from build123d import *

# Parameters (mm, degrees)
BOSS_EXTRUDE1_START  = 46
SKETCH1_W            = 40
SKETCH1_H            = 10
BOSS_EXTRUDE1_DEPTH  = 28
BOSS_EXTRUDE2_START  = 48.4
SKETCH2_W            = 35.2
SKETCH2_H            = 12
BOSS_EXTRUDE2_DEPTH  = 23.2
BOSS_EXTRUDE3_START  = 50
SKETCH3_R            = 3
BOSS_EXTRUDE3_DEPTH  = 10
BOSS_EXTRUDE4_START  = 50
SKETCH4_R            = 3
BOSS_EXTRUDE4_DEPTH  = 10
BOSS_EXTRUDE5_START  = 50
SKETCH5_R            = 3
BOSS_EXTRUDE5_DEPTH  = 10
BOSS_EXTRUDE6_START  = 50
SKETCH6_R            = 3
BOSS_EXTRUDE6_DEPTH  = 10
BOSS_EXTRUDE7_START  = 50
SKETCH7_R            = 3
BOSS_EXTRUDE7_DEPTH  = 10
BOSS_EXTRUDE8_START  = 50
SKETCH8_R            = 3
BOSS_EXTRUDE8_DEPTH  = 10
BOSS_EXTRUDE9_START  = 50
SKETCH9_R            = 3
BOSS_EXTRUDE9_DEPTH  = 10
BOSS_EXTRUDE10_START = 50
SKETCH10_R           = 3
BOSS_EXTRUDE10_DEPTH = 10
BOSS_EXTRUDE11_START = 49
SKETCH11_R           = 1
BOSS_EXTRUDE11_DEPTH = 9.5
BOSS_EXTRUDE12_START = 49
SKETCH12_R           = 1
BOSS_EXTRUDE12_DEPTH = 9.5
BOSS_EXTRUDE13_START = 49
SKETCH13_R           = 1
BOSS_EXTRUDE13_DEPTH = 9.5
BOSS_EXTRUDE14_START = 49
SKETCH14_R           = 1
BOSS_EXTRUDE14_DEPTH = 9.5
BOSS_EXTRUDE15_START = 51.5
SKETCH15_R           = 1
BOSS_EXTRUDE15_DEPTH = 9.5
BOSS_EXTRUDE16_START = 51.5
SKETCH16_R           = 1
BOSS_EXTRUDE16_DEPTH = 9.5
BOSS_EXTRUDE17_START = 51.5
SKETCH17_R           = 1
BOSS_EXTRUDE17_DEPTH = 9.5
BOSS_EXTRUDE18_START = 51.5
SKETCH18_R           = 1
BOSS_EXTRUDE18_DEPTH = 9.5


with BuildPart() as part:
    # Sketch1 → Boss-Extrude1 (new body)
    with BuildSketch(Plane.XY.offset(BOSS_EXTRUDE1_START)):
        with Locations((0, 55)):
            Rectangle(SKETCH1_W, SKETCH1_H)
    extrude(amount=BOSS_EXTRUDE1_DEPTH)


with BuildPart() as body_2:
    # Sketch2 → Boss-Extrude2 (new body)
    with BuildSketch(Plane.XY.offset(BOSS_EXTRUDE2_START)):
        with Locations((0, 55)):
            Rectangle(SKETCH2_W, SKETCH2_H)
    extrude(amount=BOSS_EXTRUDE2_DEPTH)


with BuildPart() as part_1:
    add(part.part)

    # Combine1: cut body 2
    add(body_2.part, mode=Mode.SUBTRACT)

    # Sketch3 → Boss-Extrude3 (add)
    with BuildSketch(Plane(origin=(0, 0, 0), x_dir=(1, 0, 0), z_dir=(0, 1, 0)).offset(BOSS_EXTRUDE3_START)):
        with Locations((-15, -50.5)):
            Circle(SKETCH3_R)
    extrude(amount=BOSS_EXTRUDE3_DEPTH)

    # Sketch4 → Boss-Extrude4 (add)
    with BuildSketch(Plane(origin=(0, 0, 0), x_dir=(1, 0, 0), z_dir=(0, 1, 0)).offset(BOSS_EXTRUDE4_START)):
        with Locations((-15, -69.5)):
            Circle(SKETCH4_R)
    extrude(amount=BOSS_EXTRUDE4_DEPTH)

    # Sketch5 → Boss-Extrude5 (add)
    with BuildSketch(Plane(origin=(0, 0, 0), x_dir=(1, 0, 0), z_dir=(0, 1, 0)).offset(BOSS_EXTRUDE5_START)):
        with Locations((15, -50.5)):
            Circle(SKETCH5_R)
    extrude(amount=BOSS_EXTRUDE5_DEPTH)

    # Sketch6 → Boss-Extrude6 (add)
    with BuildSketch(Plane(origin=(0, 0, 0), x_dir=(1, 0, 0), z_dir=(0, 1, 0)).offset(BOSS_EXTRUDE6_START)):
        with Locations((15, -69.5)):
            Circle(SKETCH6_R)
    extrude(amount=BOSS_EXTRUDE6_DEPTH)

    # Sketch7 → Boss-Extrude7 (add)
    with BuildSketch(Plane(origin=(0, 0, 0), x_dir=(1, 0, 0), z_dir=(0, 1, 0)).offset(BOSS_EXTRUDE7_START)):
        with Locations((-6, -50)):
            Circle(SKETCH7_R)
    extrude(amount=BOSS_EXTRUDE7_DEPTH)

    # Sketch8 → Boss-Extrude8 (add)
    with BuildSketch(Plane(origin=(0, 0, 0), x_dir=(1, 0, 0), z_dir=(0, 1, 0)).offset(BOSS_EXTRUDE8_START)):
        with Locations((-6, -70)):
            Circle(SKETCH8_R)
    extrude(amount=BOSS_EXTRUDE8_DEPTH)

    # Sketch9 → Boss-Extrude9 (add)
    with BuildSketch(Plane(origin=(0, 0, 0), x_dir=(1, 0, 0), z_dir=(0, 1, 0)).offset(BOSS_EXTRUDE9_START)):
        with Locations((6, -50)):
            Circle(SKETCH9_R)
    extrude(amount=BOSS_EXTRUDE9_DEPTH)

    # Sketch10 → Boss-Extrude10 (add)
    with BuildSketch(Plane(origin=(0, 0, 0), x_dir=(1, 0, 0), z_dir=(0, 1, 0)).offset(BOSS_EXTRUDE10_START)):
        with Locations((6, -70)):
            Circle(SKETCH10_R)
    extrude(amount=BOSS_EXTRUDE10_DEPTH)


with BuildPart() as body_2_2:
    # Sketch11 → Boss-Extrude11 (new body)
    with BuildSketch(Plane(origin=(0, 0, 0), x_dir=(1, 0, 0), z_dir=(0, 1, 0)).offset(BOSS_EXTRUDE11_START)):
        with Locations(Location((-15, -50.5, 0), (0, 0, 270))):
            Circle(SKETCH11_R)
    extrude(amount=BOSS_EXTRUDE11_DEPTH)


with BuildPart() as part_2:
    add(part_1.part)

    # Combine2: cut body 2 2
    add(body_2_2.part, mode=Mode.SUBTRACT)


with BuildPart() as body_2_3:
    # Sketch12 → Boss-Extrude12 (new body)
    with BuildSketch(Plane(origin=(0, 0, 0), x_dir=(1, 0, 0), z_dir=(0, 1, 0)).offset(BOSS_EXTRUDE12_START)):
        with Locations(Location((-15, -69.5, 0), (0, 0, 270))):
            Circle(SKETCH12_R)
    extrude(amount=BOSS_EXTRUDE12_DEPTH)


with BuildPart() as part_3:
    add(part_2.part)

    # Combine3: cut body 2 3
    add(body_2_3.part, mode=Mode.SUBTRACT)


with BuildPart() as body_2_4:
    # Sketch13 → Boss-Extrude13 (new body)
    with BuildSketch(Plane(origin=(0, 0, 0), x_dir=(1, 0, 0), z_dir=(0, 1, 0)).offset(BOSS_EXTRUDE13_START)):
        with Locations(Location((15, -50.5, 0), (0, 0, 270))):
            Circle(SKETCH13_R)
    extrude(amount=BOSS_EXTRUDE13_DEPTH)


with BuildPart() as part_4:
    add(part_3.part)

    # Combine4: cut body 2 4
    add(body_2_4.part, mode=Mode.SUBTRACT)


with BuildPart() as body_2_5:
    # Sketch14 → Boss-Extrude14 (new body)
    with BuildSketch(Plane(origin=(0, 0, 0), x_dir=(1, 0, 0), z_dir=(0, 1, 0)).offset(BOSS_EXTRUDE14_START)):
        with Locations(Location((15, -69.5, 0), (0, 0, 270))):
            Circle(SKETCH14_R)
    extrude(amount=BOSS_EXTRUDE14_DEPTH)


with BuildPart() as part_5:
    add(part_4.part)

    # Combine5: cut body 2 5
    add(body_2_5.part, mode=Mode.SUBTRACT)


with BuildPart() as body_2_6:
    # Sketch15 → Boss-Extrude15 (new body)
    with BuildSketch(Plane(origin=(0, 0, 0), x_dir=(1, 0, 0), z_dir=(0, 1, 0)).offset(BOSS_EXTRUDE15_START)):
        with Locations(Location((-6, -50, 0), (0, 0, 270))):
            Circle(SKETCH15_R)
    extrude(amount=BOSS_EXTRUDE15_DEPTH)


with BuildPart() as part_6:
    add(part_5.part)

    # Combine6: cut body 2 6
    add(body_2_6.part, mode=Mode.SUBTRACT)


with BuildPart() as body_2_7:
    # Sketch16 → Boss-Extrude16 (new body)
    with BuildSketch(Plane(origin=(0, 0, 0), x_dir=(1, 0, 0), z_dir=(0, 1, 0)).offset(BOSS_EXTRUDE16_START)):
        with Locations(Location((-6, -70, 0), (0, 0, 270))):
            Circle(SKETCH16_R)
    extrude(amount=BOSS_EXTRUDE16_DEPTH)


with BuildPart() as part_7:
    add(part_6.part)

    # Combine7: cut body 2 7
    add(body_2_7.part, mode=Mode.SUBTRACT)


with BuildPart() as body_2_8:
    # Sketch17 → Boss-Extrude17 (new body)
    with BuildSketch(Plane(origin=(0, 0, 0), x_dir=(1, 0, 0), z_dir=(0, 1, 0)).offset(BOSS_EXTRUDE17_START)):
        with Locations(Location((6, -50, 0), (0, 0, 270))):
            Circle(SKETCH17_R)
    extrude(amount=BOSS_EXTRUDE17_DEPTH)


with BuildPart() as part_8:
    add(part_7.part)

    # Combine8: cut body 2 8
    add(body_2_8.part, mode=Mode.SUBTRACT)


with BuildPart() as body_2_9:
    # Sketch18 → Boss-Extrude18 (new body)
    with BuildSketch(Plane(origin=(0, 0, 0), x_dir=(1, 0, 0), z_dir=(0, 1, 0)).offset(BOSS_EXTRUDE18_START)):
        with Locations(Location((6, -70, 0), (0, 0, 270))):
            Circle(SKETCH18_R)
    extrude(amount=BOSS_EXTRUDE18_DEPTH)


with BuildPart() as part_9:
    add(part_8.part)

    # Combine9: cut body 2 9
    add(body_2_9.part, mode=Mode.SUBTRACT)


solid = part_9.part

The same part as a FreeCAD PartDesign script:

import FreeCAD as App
import Part
import Sketcher
from FreeCAD import Vector

doc = App.newDocument("Part")
body = doc.addObject("PartDesign::Body", "Body")

sketch1 = body.newObject("Sketcher::SketchObject", "Sketch")
sketch1.AttachmentSupport = (doc.getObject("XY_Plane"), [""])
sketch1.MapMode = "FlatFace"
sketch1.AttachmentOffset = App.Placement(Vector(0, 0, 46), App.Rotation())
sketch1.addGeometry(Part.LineSegment(Vector(-20, 60, 0), Vector(-20, 50, 0)), False)
sketch1.addGeometry(Part.LineSegment(Vector(-20, 50, 0), Vector(20, 50, 0)), False)
sketch1.addGeometry(Part.LineSegment(Vector(20, 50, 0), Vector(20, 60, 0)), False)
sketch1.addGeometry(Part.LineSegment(Vector(20, 60, 0), Vector(-20, 60, 0)), False)
sketch1.addConstraint(Sketcher.Constraint("Coincident", 0, 2, 1, 1))
sketch1.addConstraint(Sketcher.Constraint("Coincident", 1, 2, 2, 1))
sketch1.addConstraint(Sketcher.Constraint("Coincident", 2, 2, 3, 1))
sketch1.addConstraint(Sketcher.Constraint("Coincident", 3, 2, 0, 1))
sketch1.addConstraint(Sketcher.Constraint("Vertical", 0))
sketch1.addConstraint(Sketcher.Constraint("Horizontal", 1))
sketch1.addConstraint(Sketcher.Constraint("Vertical", 2))
sketch1.addConstraint(Sketcher.Constraint("Horizontal", 3))
sketch1.addConstraint(Sketcher.Constraint("DistanceX", 1, 1, 1, 2, 40.0))
sketch1.addConstraint(Sketcher.Constraint("DistanceY", 0, 2, 0, 1, 10.0))
sketch1.addConstraint(Sketcher.Constraint("DistanceX", 0, 2, -1, 1, 20.0))
sketch1.addConstraint(Sketcher.Constraint("DistanceY", -1, 1, 0, 2, 50.0))
pad1 = body.newObject("PartDesign::Pad", "Pad")
pad1.Profile = sketch1
pad1.Length = 28
body2 = doc.addObject("PartDesign::Body", "Body001")

sketch2 = body2.newObject("Sketcher::SketchObject", "Sketch001")
sketch2.AttachmentSupport = (doc.getObject("XY_Plane001"), [""])
sketch2.MapMode = "FlatFace"
sketch2.AttachmentOffset = App.Placement(Vector(0, 0, 48.4), App.Rotation())
sketch2.addGeometry(Part.LineSegment(Vector(-17.6, 61, 0), Vector(-17.6, 49, 0)), False)
sketch2.addGeometry(Part.LineSegment(Vector(-17.6, 49, 0), Vector(17.6, 49, 0)), False)
sketch2.addGeometry(Part.LineSegment(Vector(17.6, 49, 0), Vector(17.6, 61, 0)), False)
sketch2.addGeometry(Part.LineSegment(Vector(17.6, 61, 0), Vector(-17.6, 61, 0)), False)
sketch2.addConstraint(Sketcher.Constraint("Coincident", 0, 2, 1, 1))
sketch2.addConstraint(Sketcher.Constraint("Coincident", 1, 2, 2, 1))
sketch2.addConstraint(Sketcher.Constraint("Coincident", 2, 2, 3, 1))
sketch2.addConstraint(Sketcher.Constraint("Coincident", 3, 2, 0, 1))
sketch2.addConstraint(Sketcher.Constraint("Vertical", 0))
sketch2.addConstraint(Sketcher.Constraint("Horizontal", 1))
sketch2.addConstraint(Sketcher.Constraint("Vertical", 2))
sketch2.addConstraint(Sketcher.Constraint("Horizontal", 3))
sketch2.addConstraint(Sketcher.Constraint("DistanceY", 0, 2, 0, 1, 12.0))
sketch2.addConstraint(Sketcher.Constraint("DistanceX", 1, 1, 1, 2, 35.2))
sketch2.addConstraint(Sketcher.Constraint("DistanceY", -1, 1, 0, 2, 49.0))
sketch2.addConstraint(Sketcher.Constraint("DistanceX", 0, 2, -1, 1, 17.6))
pad2 = body2.newObject("PartDesign::Pad", "Pad001")
pad2.Profile = sketch2
pad2.Length = 23.2
doc.recompute()

boolean = body.newObject("PartDesign::Boolean", "Boolean")
boolean.Type = "Cut"
boolean.addObjects([body2])

sketch3 = body.newObject("Sketcher::SketchObject", "Sketch002")
sketch3.AttachmentSupport = (doc.getObject("XZ_Plane"), [""])
sketch3.MapMode = "FlatFace"
sketch3.AttachmentOffset = App.Placement(Vector(0, 0, -50), App.Rotation())
sketch3.addGeometry(Part.Circle(Vector(-15, 50.5, 0), Vector(0, 0, 1), 3), False)
sketch3.addConstraint(Sketcher.Constraint("Diameter", 0, 6.0))
sketch3.addConstraint(Sketcher.Constraint("DistanceX", 0, 3, -1, 1, 15.0))
sketch3.addConstraint(Sketcher.Constraint("DistanceY", -1, 1, 0, 3, 50.5))
pad3 = body.newObject("PartDesign::Pad", "Pad002")
pad3.Profile = sketch3
pad3.Length = 10
pad3.Reversed = True

sketch4 = body.newObject("Sketcher::SketchObject", "Sketch003")
sketch4.AttachmentSupport = (doc.getObject("XZ_Plane"), [""])
sketch4.MapMode = "FlatFace"
sketch4.AttachmentOffset = App.Placement(Vector(0, 0, -50), App.Rotation())
sketch4.addGeometry(Part.Circle(Vector(-15, 69.5, 0), Vector(0, 0, 1), 3), False)
sketch4.addConstraint(Sketcher.Constraint("Diameter", 0, 6.0))
sketch4.addConstraint(Sketcher.Constraint("DistanceX", 0, 3, -1, 1, 15.0))
sketch4.addConstraint(Sketcher.Constraint("DistanceY", -1, 1, 0, 3, 69.5))
pad4 = body.newObject("PartDesign::Pad", "Pad003")
pad4.Profile = sketch4
pad4.Length = 10
pad4.Reversed = True

sketch5 = body.newObject("Sketcher::SketchObject", "Sketch004")
sketch5.AttachmentSupport = (doc.getObject("XZ_Plane"), [""])
sketch5.MapMode = "FlatFace"
sketch5.AttachmentOffset = App.Placement(Vector(0, 0, -50), App.Rotation())
sketch5.addGeometry(Part.Circle(Vector(15, 50.5, 0), Vector(0, 0, 1), 3), False)
sketch5.addConstraint(Sketcher.Constraint("Diameter", 0, 6.0))
sketch5.addConstraint(Sketcher.Constraint("DistanceX", -1, 1, 0, 3, 15.0))
sketch5.addConstraint(Sketcher.Constraint("DistanceY", -1, 1, 0, 3, 50.5))
pad5 = body.newObject("PartDesign::Pad", "Pad004")
pad5.Profile = sketch5
pad5.Length = 10
pad5.Reversed = True

sketch6 = body.newObject("Sketcher::SketchObject", "Sketch005")
sketch6.AttachmentSupport = (doc.getObject("XZ_Plane"), [""])
sketch6.MapMode = "FlatFace"
sketch6.AttachmentOffset = App.Placement(Vector(0, 0, -50), App.Rotation())
sketch6.addGeometry(Part.Circle(Vector(15, 69.5, 0), Vector(0, 0, 1), 3), False)
sketch6.addConstraint(Sketcher.Constraint("Diameter", 0, 6.0))
sketch6.addConstraint(Sketcher.Constraint("DistanceX", -1, 1, 0, 3, 15.0))
sketch6.addConstraint(Sketcher.Constraint("DistanceY", -1, 1, 0, 3, 69.5))
pad6 = body.newObject("PartDesign::Pad", "Pad005")
pad6.Profile = sketch6
pad6.Length = 10
pad6.Reversed = True

sketch7 = body.newObject("Sketcher::SketchObject", "Sketch006")
sketch7.AttachmentSupport = (doc.getObject("XZ_Plane"), [""])
sketch7.MapMode = "FlatFace"
sketch7.AttachmentOffset = App.Placement(Vector(0, 0, -50), App.Rotation())
sketch7.addGeometry(Part.Circle(Vector(-6, 50, 0), Vector(0, 0, 1), 3), False)
sketch7.addConstraint(Sketcher.Constraint("Diameter", 0, 6.0))
sketch7.addConstraint(Sketcher.Constraint("DistanceX", 0, 3, -1, 1, 6.0))
sketch7.addConstraint(Sketcher.Constraint("DistanceY", -1, 1, 0, 3, 50.0))
pad7 = body.newObject("PartDesign::Pad", "Pad006")
pad7.Profile = sketch7
pad7.Length = 10
pad7.Reversed = True

sketch8 = body.newObject("Sketcher::SketchObject", "Sketch007")
sketch8.AttachmentSupport = (doc.getObject("XZ_Plane"), [""])
sketch8.MapMode = "FlatFace"
sketch8.AttachmentOffset = App.Placement(Vector(0, 0, -50), App.Rotation())
sketch8.addGeometry(Part.Circle(Vector(-6, 70, 0), Vector(0, 0, 1), 3), False)
sketch8.addConstraint(Sketcher.Constraint("Diameter", 0, 6.0))
sketch8.addConstraint(Sketcher.Constraint("DistanceX", 0, 3, -1, 1, 6.0))
sketch8.addConstraint(Sketcher.Constraint("DistanceY", -1, 1, 0, 3, 70.0))
pad8 = body.newObject("PartDesign::Pad", "Pad007")
pad8.Profile = sketch8
pad8.Length = 10
pad8.Reversed = True

sketch9 = body.newObject("Sketcher::SketchObject", "Sketch008")
sketch9.AttachmentSupport = (doc.getObject("XZ_Plane"), [""])
sketch9.MapMode = "FlatFace"
sketch9.AttachmentOffset = App.Placement(Vector(0, 0, -50), App.Rotation())
sketch9.addGeometry(Part.Circle(Vector(6, 50, 0), Vector(0, 0, 1), 3), False)
sketch9.addConstraint(Sketcher.Constraint("Diameter", 0, 6.0))
sketch9.addConstraint(Sketcher.Constraint("DistanceX", -1, 1, 0, 3, 6.0))
sketch9.addConstraint(Sketcher.Constraint("DistanceY", -1, 1, 0, 3, 50.0))
pad9 = body.newObject("PartDesign::Pad", "Pad008")
pad9.Profile = sketch9
pad9.Length = 10
pad9.Reversed = True

sketch10 = body.newObject("Sketcher::SketchObject", "Sketch009")
sketch10.AttachmentSupport = (doc.getObject("XZ_Plane"), [""])
sketch10.MapMode = "FlatFace"
sketch10.AttachmentOffset = App.Placement(Vector(0, 0, -50), App.Rotation())
sketch10.addGeometry(Part.Circle(Vector(6, 70, 0), Vector(0, 0, 1), 3), False)
sketch10.addConstraint(Sketcher.Constraint("Diameter", 0, 6.0))
sketch10.addConstraint(Sketcher.Constraint("DistanceX", -1, 1, 0, 3, 6.0))
sketch10.addConstraint(Sketcher.Constraint("DistanceY", -1, 1, 0, 3, 70.0))
pad10 = body.newObject("PartDesign::Pad", "Pad009")
pad10.Profile = sketch10
pad10.Length = 10
pad10.Reversed = True
body3 = doc.addObject("PartDesign::Body", "Body002")

sketch11 = body3.newObject("Sketcher::SketchObject", "Sketch010")
sketch11.AttachmentSupport = (doc.getObject("XZ_Plane002"), [""])
sketch11.MapMode = "FlatFace"
sketch11.AttachmentOffset = App.Placement(Vector(0, 0, -49), App.Rotation())
sketch11.addGeometry(Part.Circle(Vector(-15, 50.5, 0), Vector(0, 0, 1), 1), False)
sketch11.addConstraint(Sketcher.Constraint("Diameter", 0, 2.0))
sketch11.addConstraint(Sketcher.Constraint("DistanceX", 0, 3, -1, 1, 15.0))
sketch11.addConstraint(Sketcher.Constraint("DistanceY", -1, 1, 0, 3, 50.5))
pad11 = body3.newObject("PartDesign::Pad", "Pad010")
pad11.Profile = sketch11
pad11.Length = 9.5
pad11.Reversed = True
doc.recompute()

boolean2 = body.newObject("PartDesign::Boolean", "Boolean001")
boolean2.Type = "Cut"
boolean2.addObjects([body3])
body4 = doc.addObject("PartDesign::Body", "Body003")

sketch12 = body4.newObject("Sketcher::SketchObject", "Sketch011")
sketch12.AttachmentSupport = (doc.getObject("XZ_Plane003"), [""])
sketch12.MapMode = "FlatFace"
sketch12.AttachmentOffset = App.Placement(Vector(0, 0, -49), App.Rotation())
sketch12.addGeometry(Part.Circle(Vector(-15, 69.5, 0), Vector(0, 0, 1), 1), False)
sketch12.addConstraint(Sketcher.Constraint("Diameter", 0, 2.0))
sketch12.addConstraint(Sketcher.Constraint("DistanceX", 0, 3, -1, 1, 15.0))
sketch12.addConstraint(Sketcher.Constraint("DistanceY", -1, 1, 0, 3, 69.5))
pad12 = body4.newObject("PartDesign::Pad", "Pad011")
pad12.Profile = sketch12
pad12.Length = 9.5
pad12.Reversed = True
doc.recompute()

boolean3 = body.newObject("PartDesign::Boolean", "Boolean002")
boolean3.Type = "Cut"
boolean3.addObjects([body4])
body5 = doc.addObject("PartDesign::Body", "Body004")

sketch13 = body5.newObject("Sketcher::SketchObject", "Sketch012")
sketch13.AttachmentSupport = (doc.getObject("XZ_Plane004"), [""])
sketch13.MapMode = "FlatFace"
sketch13.AttachmentOffset = App.Placement(Vector(0, 0, -49), App.Rotation())
sketch13.addGeometry(Part.Circle(Vector(15, 50.5, 0), Vector(0, 0, 1), 1), False)
sketch13.addConstraint(Sketcher.Constraint("Diameter", 0, 2.0))
sketch13.addConstraint(Sketcher.Constraint("DistanceX", -1, 1, 0, 3, 15.0))
sketch13.addConstraint(Sketcher.Constraint("DistanceY", -1, 1, 0, 3, 50.5))
pad13 = body5.newObject("PartDesign::Pad", "Pad012")
pad13.Profile = sketch13
pad13.Length = 9.5
pad13.Reversed = True
doc.recompute()

boolean4 = body.newObject("PartDesign::Boolean", "Boolean003")
boolean4.Type = "Cut"
boolean4.addObjects([body5])
body6 = doc.addObject("PartDesign::Body", "Body005")

sketch14 = body6.newObject("Sketcher::SketchObject", "Sketch013")
sketch14.AttachmentSupport = (doc.getObject("XZ_Plane005"), [""])
sketch14.MapMode = "FlatFace"
sketch14.AttachmentOffset = App.Placement(Vector(0, 0, -49), App.Rotation())
sketch14.addGeometry(Part.Circle(Vector(15, 69.5, 0), Vector(0, 0, 1), 1), False)
sketch14.addConstraint(Sketcher.Constraint("Diameter", 0, 2.0))
sketch14.addConstraint(Sketcher.Constraint("DistanceX", -1, 1, 0, 3, 15.0))
sketch14.addConstraint(Sketcher.Constraint("DistanceY", -1, 1, 0, 3, 69.5))
pad14 = body6.newObject("PartDesign::Pad", "Pad013")
pad14.Profile = sketch14
pad14.Length = 9.5
pad14.Reversed = True
doc.recompute()

boolean5 = body.newObject("PartDesign::Boolean", "Boolean004")
boolean5.Type = "Cut"
boolean5.addObjects([body6])
body7 = doc.addObject("PartDesign::Body", "Body006")

sketch15 = body7.newObject("Sketcher::SketchObject", "Sketch014")
sketch15.AttachmentSupport = (doc.getObject("XZ_Plane006"), [""])
sketch15.MapMode = "FlatFace"
sketch15.AttachmentOffset = App.Placement(Vector(0, 0, -51.5), App.Rotation())
sketch15.addGeometry(Part.Circle(Vector(-6, 50, 0), Vector(0, 0, 1), 1), False)
sketch15.addConstraint(Sketcher.Constraint("Diameter", 0, 2.0))
sketch15.addConstraint(Sketcher.Constraint("DistanceX", 0, 3, -1, 1, 6.0))
sketch15.addConstraint(Sketcher.Constraint("DistanceY", -1, 1, 0, 3, 50.0))
pad15 = body7.newObject("PartDesign::Pad", "Pad014")
pad15.Profile = sketch15
pad15.Length = 9.5
pad15.Reversed = True
doc.recompute()

boolean6 = body.newObject("PartDesign::Boolean", "Boolean005")
boolean6.Type = "Cut"
boolean6.addObjects([body7])
body8 = doc.addObject("PartDesign::Body", "Body007")

sketch16 = body8.newObject("Sketcher::SketchObject", "Sketch015")
sketch16.AttachmentSupport = (doc.getObject("XZ_Plane007"), [""])
sketch16.MapMode = "FlatFace"
sketch16.AttachmentOffset = App.Placement(Vector(0, 0, -51.5), App.Rotation())
sketch16.addGeometry(Part.Circle(Vector(-6, 70, 0), Vector(0, 0, 1), 1), False)
sketch16.addConstraint(Sketcher.Constraint("Diameter", 0, 2.0))
sketch16.addConstraint(Sketcher.Constraint("DistanceX", 0, 3, -1, 1, 6.0))
sketch16.addConstraint(Sketcher.Constraint("DistanceY", -1, 1, 0, 3, 70.0))
pad16 = body8.newObject("PartDesign::Pad", "Pad015")
pad16.Profile = sketch16
pad16.Length = 9.5
pad16.Reversed = True
doc.recompute()

boolean7 = body.newObject("PartDesign::Boolean", "Boolean006")
boolean7.Type = "Cut"
boolean7.addObjects([body8])
body9 = doc.addObject("PartDesign::Body", "Body008")

sketch17 = body9.newObject("Sketcher::SketchObject", "Sketch016")
sketch17.AttachmentSupport = (doc.getObject("XZ_Plane008"), [""])
sketch17.MapMode = "FlatFace"
sketch17.AttachmentOffset = App.Placement(Vector(0, 0, -51.5), App.Rotation())
sketch17.addGeometry(Part.Circle(Vector(6, 50, 0), Vector(0, 0, 1), 1), False)
sketch17.addConstraint(Sketcher.Constraint("Diameter", 0, 2.0))
sketch17.addConstraint(Sketcher.Constraint("DistanceX", -1, 1, 0, 3, 6.0))
sketch17.addConstraint(Sketcher.Constraint("DistanceY", -1, 1, 0, 3, 50.0))
pad17 = body9.newObject("PartDesign::Pad", "Pad016")
pad17.Profile = sketch17
pad17.Length = 9.5
pad17.Reversed = True
doc.recompute()

boolean8 = body.newObject("PartDesign::Boolean", "Boolean007")
boolean8.Type = "Cut"
boolean8.addObjects([body9])
body10 = doc.addObject("PartDesign::Body", "Body009")

sketch18 = body10.newObject("Sketcher::SketchObject", "Sketch017")
sketch18.AttachmentSupport = (doc.getObject("XZ_Plane009"), [""])
sketch18.MapMode = "FlatFace"
sketch18.AttachmentOffset = App.Placement(Vector(0, 0, -51.5), App.Rotation())
sketch18.addGeometry(Part.Circle(Vector(6, 70, 0), Vector(0, 0, 1), 1), False)
sketch18.addConstraint(Sketcher.Constraint("Diameter", 0, 2.0))
sketch18.addConstraint(Sketcher.Constraint("DistanceX", -1, 1, 0, 3, 6.0))
sketch18.addConstraint(Sketcher.Constraint("DistanceY", -1, 1, 0, 3, 70.0))
pad18 = body10.newObject("PartDesign::Pad", "Pad017")
pad18.Profile = sketch18
pad18.Length = 9.5
pad18.Reversed = True
doc.recompute()

boolean9 = body.newObject("PartDesign::Boolean", "Boolean008")
boolean9.Type = "Cut"
boolean9.addObjects([body10])

doc.recompute()
